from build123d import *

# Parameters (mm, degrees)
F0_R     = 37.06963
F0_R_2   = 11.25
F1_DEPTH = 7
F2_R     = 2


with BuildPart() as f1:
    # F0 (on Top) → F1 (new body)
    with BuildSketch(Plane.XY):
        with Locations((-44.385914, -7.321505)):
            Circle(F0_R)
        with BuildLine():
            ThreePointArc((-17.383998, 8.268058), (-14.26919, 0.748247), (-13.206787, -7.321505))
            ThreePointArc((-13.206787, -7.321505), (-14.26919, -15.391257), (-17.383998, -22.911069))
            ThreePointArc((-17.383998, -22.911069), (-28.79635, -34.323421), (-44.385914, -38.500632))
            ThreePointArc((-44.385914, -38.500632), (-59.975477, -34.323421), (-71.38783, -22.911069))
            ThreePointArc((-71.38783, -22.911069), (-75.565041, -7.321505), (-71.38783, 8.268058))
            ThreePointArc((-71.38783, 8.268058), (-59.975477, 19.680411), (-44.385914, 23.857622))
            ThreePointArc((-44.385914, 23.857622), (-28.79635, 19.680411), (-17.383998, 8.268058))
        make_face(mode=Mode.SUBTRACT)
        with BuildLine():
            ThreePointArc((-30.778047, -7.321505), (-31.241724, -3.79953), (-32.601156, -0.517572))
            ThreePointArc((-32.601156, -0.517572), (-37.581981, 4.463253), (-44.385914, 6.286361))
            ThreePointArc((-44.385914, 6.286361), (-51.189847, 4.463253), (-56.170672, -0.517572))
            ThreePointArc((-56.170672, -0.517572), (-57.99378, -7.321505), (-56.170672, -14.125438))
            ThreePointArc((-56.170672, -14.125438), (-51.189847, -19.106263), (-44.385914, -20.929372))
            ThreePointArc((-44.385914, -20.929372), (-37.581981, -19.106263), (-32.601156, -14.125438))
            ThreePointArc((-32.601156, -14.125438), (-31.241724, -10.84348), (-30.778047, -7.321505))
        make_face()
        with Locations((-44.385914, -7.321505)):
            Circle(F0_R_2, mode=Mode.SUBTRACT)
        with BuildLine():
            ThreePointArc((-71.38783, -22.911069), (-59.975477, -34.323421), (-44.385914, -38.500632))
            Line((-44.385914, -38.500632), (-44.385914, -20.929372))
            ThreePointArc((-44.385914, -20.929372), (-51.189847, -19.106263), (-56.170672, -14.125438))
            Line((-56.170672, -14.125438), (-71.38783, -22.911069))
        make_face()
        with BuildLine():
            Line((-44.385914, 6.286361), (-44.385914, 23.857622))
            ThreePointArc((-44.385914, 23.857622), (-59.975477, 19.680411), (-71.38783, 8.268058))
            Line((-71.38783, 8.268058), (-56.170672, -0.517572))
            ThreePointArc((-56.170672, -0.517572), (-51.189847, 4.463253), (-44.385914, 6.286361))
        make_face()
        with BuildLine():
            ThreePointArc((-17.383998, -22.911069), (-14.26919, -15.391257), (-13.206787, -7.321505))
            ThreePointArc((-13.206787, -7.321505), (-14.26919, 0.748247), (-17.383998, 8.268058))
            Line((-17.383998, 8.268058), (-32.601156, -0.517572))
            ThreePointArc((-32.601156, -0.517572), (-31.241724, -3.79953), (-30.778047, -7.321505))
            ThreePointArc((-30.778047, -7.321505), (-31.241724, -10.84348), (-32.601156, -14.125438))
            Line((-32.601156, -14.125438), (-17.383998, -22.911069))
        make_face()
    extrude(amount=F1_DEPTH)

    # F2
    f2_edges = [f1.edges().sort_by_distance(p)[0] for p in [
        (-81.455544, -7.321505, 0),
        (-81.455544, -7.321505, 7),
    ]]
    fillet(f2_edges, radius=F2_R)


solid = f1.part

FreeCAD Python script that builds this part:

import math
import FreeCAD as App
import Part
import Sketcher
from FreeCAD import Vector
Q = App.Units.Quantity


def edges_at(feature, points):
    """Names of the edges that pass closest to the given points."""
    edges = feature.Shape.Edges
    near = lambda p: min(range(len(edges)), key=lambda i: edges[i].distToShape(Part.Vertex(*p))[0])
    return sorted({f"Edge{near(p) + 1}" for p in points})

doc = App.newDocument("Part")
body = doc.addObject("PartDesign::Body", "Body")

sketch1 = doc.addObject("Sketcher::SketchObject", "Sketch")
body.addObject(sketch1)
sketch1.AttachmentSupport = (doc.XY_Plane, [""])
sketch1.MapMode = "FlatFace"
sketch1.addGeometry(Part.Circle(Vector(-44, -7, 0), Vector(0, 0, 1), 37), False)
sketch1.addGeometry(Part.ArcOfCircle(Part.Circle(Vector(-44, -7, 0), Vector(0, 0, 1), 31), math.radians(30), math.radians(90)), False)
sketch1.addGeometry(Part.LineSegment(Vector(-17, 8, 0), Vector(-33, -1, 0)), False)
sketch1.addGeometry(Part.ArcOfCircle(Part.Circle(Vector(-44, -7, 0), Vector(0, 0, 1), 14), math.radians(30), math.radians(90)), False)
sketch1.addGeometry(Part.LineSegment(Vector(-44, 6, 0), Vector(-44, 24, 0)), False)
sketch1.addGeometry(Part.ArcOfCircle(Part.Circle(Vector(-44, -7, 0), Vector(0, 0, 1), 31), math.radians(-90), math.radians(-30)), False)
sketch1.addGeometry(Part.LineSegment(Vector(-44, -39, 0), Vector(-44, -21, 0)), False)
sketch1.addGeometry(Part.ArcOfCircle(Part.Circle(Vector(-44, -7, 0), Vector(0, 0, 1), 14), math.radians(-90), math.radians(-30)), False)
sketch1.addGeometry(Part.LineSegment(Vector(-33, -14, 0), Vector(-17, -23, 0)), False)
sketch1.addGeometry(Part.ArcOfCircle(Part.Circle(Vector(-44, -7, 0), Vector(0, 0, 1), 14), math.radians(150), math.radians(210)), False)
sketch1.addGeometry(Part.LineSegment(Vector(-56, -14, 0), Vector(-71, -23, 0)), False)
sketch1.addGeometry(Part.ArcOfCircle(Part.Circle(Vector(-44, -7, 0), Vector(0, 0, 1), 31), math.radians(150), math.radians(210)), False)
sketch1.addGeometry(Part.LineSegment(Vector(-71, 8, 0), Vector(-56, -1, 0)), False)
sketch1.addGeometry(Part.Circle(Vector(-44, -7, 0), Vector(0, 0, 1), 11), False)
sketch1.addConstraint(Sketcher.Constraint("Coincident", 1, 1, 2, 1))
sketch1.addConstraint(Sketcher.Constraint("Coincident", 2, 2, 3, 1))
sketch1.addConstraint(Sketcher.Constraint("Coincident", 3, 2, 4, 1))
sketch1.addConstraint(Sketcher.Constraint("Coincident", 4, 2, 1, 2))
sketch1.addConstraint(Sketcher.Constraint("Coincident", 5, 1, 6, 1))
sketch1.addConstraint(Sketcher.Constraint("Coincident", 6, 2, 7, 1))
sketch1.addConstraint(Sketcher.Constraint("Coincident", 7, 2, 8, 1))
sketch1.addConstraint(Sketcher.Constraint("Coincident", 8, 2, 5, 2))
sketch1.addConstraint(Sketcher.Constraint("Coincident", 9, 2, 10, 1))
sketch1.addConstraint(Sketcher.Constraint("Coincident", 10, 2, 11, 2))
sketch1.addConstraint(Sketcher.Constraint("Coincident", 11, 1, 12, 1))
sketch1.addConstraint(Sketcher.Constraint("Coincident", 12, 2, 9, 1))
sketch1.addConstraint(Sketcher.Constraint("Vertical", 4))
sketch1.addConstraint(Sketcher.Constraint("Vertical", 6))
sketch1.addConstraint(Sketcher.Constraint("Coincident", 1, 3, 0, 3))
sketch1.addConstraint(Sketcher.Constraint("Coincident", 3, 3, 0, 3))
sketch1.addConstraint(Sketcher.Constraint("Coincident", 5, 3, 0, 3))
sketch1.addConstraint(Sketcher.Constraint("Coincident", 7, 3, 0, 3))
sketch1.addConstraint(Sketcher.Constraint("Coincident", 9, 3, 0, 3))
sketch1.addConstraint(Sketcher.Constraint("Coincident", 11, 3, 0, 3))
sketch1.addConstraint(Sketcher.Constraint("Coincident", 13, 3, 0, 3))
sketch1.addConstraint(Sketcher.Constraint("Equal", 1, 5))
sketch1.addConstraint(Sketcher.Constraint("Equal", 7, 9))
sketch1.addConstraint(Sketcher.Constraint("Equal", 5, 11))
sketch1.addConstraint(Sketcher.Constraint("Parallel", 2, 10))
sketch1.addConstraint(Sketcher.Constraint("Parallel", 8, 12))
sketch1.addConstraint(Sketcher.Constraint("Horizontal", 7, 2, 9, 2))
sketch1.addConstraint(Sketcher.Constraint("Horizontal", 8, 2, 10, 2))
sketch1.addConstraint(Sketcher.Constraint("Horizontal", 1, 1, 11, 1))
sketch1.addConstraint(Sketcher.Constraint("Horizontal", 2, 2, 12, 2))
sketch1.addConstraint(Sketcher.Constraint("Vertical", 13, 3, 3, 2))
sketch1.addConstraint(Sketcher.Constraint("Vertical", 4, 2, 5, 1))
sketch1.addConstraint(Sketcher.Constraint("Vertical", 2, 2, 7, 2))
sketch1.addConstraint(Sketcher.Constraint("Diameter", 13, Q("22.5 mm")))
sketch1.addConstraint(Sketcher.Constraint("Angle", 2, Q("-150.000001 deg")))
sketch1.addConstraint(Sketcher.Constraint("Diameter", 0, Q("74.13926 mm")))
sketch1.addConstraint(Sketcher.Constraint("Radius", 7, Q("13.607869 mm")))
sketch1.addConstraint(Sketcher.Constraint("DistanceX", 1, 1, -1, 1, Q("17.383998 mm")))
sketch1.addConstraint(Sketcher.Constraint("Radius", 1, Q("31.179125 mm")))
sketch1.addConstraint(Sketcher.Constraint("DistanceX", 9, 3, -1, 1, Q("44.385912 mm")))
sketch1.addConstraint(Sketcher.Constraint("DistanceY", -1, 1, 3, 2, Q("6.286361 mm")))
pad1 = doc.addObject("PartDesign::Pad", "Pad")
body.addObject(pad1)
pad1.Profile = sketch1
pad1.Length = 7
doc.recompute()

fillet = doc.addObject("PartDesign::Fillet", "Fillet")
body.addObject(fillet)
fillet.Base = (pad1, edges_at(pad1, [(-81.456, -7.322, 0), (-81.456, -7.322, 7)]))
fillet.Radius = 2

doc.recompute()
